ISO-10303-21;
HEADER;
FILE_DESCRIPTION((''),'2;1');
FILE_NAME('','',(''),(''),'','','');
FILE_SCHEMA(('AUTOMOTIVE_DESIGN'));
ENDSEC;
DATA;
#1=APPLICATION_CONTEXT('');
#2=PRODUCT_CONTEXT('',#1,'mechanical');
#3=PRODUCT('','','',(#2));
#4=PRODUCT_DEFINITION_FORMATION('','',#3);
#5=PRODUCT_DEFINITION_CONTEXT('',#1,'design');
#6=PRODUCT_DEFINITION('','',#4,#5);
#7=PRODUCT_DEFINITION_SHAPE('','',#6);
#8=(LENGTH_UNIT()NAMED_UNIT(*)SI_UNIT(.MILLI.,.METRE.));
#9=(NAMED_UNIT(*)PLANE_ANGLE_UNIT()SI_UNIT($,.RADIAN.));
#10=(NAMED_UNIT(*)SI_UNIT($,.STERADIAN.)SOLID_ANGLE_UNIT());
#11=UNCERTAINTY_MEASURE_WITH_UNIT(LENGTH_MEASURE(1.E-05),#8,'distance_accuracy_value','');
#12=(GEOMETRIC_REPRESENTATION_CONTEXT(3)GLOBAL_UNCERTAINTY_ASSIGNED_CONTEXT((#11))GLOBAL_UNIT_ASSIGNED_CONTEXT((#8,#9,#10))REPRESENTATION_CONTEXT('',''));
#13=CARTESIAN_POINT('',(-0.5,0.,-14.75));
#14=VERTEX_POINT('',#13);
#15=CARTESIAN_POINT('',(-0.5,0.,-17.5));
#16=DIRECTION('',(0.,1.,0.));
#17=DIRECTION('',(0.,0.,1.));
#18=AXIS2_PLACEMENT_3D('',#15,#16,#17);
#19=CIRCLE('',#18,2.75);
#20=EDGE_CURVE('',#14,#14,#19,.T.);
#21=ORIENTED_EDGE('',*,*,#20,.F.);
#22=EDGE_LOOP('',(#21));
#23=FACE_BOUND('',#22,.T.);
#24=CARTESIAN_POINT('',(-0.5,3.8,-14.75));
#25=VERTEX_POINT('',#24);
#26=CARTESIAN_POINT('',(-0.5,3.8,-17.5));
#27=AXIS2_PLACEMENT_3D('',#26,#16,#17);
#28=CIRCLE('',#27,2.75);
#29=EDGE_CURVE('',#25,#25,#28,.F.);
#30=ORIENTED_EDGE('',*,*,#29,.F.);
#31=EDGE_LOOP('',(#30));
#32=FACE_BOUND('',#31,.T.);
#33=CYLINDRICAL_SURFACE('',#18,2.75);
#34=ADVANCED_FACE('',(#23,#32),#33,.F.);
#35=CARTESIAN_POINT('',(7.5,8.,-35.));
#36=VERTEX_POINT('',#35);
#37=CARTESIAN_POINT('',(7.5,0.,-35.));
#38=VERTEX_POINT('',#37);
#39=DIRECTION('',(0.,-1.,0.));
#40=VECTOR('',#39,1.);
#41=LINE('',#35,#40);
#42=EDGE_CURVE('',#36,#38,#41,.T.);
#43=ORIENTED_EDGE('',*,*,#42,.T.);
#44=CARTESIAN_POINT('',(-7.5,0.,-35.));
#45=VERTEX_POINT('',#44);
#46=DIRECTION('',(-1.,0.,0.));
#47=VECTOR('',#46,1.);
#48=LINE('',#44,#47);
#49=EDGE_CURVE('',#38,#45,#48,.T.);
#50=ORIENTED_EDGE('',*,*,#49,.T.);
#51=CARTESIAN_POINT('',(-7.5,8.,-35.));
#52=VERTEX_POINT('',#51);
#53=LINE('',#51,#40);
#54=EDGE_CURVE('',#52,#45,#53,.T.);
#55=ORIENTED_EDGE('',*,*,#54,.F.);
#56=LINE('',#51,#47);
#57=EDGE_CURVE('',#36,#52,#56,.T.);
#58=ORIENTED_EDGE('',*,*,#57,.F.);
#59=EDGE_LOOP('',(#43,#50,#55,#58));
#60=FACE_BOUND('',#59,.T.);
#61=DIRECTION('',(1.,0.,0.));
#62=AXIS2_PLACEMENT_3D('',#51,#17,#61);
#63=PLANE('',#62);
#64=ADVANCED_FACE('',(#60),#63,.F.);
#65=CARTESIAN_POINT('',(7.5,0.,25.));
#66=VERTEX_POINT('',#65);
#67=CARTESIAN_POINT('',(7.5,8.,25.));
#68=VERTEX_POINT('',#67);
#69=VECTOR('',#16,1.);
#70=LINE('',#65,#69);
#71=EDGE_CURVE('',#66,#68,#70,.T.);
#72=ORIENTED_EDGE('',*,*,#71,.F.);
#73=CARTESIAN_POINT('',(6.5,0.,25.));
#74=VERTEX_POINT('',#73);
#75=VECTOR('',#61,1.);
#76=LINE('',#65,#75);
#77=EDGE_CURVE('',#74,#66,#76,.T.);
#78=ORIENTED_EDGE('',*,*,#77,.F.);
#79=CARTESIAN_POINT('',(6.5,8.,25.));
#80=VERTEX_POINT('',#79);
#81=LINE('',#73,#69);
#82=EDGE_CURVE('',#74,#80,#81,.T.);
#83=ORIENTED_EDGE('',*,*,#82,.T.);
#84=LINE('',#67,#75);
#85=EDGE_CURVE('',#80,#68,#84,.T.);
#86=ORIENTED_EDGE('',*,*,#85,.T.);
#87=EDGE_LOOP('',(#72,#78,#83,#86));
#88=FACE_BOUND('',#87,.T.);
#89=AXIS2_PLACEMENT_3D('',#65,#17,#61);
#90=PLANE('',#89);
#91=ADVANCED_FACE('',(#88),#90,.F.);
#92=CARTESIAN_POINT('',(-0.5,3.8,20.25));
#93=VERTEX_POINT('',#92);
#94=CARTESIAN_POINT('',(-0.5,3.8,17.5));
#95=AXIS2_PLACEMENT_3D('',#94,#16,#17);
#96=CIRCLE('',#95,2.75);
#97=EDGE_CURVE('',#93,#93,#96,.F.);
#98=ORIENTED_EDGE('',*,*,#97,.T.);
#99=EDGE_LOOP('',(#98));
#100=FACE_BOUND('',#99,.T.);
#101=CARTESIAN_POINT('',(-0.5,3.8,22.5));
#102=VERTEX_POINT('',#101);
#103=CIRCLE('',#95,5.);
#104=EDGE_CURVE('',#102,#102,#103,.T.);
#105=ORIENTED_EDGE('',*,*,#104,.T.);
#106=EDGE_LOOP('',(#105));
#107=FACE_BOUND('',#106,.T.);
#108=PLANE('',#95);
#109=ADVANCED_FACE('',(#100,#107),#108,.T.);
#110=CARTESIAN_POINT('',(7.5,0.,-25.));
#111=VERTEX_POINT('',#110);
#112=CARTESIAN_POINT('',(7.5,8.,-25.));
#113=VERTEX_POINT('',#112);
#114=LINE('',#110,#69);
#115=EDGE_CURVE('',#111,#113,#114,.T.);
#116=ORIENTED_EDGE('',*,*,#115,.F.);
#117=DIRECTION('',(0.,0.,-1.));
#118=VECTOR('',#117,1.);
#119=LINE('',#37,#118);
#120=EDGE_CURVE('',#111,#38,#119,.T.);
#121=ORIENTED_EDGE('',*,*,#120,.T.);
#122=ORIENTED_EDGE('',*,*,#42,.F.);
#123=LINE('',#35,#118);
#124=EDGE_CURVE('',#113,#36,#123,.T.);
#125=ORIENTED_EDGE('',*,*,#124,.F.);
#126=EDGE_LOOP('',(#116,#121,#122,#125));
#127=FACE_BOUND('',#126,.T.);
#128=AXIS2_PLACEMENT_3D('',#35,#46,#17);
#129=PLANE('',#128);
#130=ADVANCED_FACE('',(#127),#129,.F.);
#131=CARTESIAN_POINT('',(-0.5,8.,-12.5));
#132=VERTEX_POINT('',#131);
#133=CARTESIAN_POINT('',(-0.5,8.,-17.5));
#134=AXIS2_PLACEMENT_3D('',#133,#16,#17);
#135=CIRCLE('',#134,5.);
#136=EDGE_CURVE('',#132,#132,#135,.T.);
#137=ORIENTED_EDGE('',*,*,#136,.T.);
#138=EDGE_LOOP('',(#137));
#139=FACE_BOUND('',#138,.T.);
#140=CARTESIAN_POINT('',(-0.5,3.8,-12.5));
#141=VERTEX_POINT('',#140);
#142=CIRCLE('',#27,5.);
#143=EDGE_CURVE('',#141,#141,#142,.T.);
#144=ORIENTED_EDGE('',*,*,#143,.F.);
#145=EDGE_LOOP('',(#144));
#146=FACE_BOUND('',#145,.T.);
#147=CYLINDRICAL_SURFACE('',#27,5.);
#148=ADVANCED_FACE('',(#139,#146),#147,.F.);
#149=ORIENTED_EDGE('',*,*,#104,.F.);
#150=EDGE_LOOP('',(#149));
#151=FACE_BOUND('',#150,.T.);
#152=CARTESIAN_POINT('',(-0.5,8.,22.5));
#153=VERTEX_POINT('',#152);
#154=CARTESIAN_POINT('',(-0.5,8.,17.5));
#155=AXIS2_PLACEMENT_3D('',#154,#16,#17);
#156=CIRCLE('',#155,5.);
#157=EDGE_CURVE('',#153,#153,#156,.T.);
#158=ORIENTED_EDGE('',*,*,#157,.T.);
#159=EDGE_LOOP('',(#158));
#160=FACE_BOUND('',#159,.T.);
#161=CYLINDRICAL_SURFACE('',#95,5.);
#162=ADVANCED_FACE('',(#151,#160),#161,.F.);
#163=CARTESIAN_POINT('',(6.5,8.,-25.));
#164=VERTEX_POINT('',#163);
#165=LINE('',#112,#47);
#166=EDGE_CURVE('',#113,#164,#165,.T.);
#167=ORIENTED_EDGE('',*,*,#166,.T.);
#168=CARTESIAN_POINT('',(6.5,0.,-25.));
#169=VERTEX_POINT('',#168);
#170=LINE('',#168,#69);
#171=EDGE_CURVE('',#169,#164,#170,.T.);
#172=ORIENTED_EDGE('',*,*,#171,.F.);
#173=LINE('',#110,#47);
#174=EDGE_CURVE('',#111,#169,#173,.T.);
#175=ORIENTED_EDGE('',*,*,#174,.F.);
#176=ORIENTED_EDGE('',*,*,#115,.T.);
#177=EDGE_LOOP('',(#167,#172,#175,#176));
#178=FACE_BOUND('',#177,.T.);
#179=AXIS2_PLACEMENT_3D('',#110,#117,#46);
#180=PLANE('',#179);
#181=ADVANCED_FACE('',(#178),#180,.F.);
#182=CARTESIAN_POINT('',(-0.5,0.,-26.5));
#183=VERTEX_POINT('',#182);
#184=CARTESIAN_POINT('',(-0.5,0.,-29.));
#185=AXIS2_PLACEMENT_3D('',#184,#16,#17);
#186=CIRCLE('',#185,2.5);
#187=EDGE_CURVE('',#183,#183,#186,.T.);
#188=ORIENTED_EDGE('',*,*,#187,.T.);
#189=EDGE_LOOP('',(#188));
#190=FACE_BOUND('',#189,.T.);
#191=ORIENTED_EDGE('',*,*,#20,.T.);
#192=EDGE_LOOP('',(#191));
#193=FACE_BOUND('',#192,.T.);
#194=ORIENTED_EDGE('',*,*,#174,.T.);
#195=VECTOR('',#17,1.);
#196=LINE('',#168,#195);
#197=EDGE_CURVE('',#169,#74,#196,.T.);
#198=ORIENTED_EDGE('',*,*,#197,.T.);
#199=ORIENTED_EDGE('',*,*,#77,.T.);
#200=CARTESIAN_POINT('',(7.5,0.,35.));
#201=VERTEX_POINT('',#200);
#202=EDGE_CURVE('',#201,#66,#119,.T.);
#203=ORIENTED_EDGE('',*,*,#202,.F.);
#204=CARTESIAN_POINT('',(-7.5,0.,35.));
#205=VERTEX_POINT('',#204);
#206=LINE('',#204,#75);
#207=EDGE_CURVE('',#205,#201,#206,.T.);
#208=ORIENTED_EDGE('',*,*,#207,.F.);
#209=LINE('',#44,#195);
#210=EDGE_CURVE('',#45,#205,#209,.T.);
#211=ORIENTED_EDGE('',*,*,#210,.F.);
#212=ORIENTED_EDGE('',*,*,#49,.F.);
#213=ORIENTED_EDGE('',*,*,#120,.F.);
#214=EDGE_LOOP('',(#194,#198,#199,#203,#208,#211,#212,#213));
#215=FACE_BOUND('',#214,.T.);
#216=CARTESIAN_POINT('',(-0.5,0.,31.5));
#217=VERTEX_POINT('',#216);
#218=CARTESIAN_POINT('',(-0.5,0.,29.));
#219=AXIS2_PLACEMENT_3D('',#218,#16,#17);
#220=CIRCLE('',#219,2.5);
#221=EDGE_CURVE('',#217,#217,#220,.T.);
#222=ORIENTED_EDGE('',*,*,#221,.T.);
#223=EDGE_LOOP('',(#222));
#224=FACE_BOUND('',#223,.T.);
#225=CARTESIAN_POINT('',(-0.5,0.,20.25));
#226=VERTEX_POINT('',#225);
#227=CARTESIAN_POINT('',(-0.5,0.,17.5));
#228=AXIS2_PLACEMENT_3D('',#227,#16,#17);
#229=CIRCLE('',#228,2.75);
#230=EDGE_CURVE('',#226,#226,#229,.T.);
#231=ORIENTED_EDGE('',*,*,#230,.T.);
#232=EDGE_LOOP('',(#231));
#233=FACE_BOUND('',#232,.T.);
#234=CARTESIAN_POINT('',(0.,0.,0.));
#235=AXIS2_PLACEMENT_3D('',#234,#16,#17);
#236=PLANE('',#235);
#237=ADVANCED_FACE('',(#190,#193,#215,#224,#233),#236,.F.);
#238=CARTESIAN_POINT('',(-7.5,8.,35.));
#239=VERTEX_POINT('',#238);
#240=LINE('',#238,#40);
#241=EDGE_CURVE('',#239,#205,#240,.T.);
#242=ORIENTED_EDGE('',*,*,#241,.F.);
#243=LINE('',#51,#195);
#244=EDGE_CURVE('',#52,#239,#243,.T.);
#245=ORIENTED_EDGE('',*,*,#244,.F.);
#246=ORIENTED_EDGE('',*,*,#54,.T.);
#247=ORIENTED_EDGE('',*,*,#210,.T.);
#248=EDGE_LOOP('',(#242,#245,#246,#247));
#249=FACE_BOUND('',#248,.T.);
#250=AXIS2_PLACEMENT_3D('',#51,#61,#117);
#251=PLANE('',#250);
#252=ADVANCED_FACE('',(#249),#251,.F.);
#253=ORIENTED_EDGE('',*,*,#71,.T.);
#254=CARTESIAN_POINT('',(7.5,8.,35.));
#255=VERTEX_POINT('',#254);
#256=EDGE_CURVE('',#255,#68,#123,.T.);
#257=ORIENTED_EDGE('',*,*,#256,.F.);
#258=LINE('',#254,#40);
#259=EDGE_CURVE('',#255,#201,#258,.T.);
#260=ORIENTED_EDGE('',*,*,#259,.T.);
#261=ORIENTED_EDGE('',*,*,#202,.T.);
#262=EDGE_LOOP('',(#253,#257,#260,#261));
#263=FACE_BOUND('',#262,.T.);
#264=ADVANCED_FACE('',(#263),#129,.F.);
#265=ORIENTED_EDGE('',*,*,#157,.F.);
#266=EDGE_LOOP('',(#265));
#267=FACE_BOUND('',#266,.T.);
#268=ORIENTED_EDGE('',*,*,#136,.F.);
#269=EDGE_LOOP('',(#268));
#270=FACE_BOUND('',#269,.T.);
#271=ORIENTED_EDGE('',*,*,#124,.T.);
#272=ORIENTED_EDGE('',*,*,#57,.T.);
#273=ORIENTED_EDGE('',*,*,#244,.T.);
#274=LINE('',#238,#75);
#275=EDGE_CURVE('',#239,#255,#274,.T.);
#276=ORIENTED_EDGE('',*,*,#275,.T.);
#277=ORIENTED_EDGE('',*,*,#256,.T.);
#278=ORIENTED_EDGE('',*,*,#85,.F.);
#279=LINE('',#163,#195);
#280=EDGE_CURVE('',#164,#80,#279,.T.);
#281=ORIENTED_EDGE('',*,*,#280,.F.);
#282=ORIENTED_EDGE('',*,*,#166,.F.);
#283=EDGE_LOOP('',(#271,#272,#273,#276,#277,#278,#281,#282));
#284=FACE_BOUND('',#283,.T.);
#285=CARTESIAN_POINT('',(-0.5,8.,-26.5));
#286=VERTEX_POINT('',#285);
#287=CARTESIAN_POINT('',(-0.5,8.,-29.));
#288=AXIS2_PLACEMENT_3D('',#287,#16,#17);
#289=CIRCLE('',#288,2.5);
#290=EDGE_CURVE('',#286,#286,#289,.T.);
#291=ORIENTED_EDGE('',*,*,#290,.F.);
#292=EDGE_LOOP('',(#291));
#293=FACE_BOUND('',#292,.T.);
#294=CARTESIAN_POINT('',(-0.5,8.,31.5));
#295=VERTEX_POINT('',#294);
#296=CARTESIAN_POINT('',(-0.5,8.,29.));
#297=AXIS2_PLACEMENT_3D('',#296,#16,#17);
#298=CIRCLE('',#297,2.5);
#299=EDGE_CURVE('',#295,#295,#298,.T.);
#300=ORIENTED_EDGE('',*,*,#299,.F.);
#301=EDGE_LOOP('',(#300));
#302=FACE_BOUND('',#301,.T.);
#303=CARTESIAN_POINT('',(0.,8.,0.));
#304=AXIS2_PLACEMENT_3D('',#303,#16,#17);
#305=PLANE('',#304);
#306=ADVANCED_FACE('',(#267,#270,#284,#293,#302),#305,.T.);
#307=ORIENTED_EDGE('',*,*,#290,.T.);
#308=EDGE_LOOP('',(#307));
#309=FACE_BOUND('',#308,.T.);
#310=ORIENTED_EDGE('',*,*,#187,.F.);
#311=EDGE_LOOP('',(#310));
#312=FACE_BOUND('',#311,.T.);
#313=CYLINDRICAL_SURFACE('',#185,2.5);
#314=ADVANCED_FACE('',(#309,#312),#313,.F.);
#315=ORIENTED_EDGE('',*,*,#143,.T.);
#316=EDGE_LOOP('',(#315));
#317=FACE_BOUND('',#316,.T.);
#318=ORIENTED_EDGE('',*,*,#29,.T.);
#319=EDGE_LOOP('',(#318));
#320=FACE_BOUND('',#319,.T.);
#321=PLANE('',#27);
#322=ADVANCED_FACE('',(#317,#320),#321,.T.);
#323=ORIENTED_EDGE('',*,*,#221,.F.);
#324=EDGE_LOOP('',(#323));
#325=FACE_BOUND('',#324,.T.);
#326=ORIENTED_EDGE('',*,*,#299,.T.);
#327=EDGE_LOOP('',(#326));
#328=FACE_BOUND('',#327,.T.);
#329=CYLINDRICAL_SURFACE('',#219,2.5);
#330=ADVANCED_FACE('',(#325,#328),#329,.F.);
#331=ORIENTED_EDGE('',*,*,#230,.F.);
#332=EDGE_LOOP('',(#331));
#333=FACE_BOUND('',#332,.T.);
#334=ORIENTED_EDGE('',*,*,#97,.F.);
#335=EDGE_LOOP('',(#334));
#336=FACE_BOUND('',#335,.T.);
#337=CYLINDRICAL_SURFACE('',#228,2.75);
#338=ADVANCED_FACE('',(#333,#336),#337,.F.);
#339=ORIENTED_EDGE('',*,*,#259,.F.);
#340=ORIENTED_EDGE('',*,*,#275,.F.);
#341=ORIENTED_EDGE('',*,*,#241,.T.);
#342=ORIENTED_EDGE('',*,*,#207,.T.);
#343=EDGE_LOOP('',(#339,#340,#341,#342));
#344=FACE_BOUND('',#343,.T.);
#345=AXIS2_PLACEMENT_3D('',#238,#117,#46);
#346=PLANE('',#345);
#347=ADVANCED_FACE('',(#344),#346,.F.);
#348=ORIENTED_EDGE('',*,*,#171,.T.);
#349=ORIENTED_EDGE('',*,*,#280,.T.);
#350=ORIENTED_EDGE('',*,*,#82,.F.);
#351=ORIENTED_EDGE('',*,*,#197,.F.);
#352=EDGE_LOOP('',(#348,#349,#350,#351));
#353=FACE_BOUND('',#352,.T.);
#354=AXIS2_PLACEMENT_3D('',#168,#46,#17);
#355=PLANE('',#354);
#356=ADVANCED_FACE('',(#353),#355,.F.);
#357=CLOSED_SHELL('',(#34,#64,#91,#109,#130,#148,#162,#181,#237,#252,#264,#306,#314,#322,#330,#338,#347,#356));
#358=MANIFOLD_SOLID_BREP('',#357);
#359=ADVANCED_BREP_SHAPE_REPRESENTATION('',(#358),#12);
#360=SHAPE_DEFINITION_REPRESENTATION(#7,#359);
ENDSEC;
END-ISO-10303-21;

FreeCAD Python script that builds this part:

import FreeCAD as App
import Part
import Sketcher

V = App.Vector
Q = App.Units.Quantity


def add_polygon(sketch, points):
    """Adds a closed chain of lines whose ends are joined by coincident constraints."""
    first, n = sketch.GeometryCount, len(points)
    for a, b in zip(points, points[1:] + points[:1]):
        sketch.addGeometry(Part.LineSegment(App.Vector(*a, 0), App.Vector(*b, 0)), False)
    for i in range(n):
        sketch.addConstraint(Sketcher.Constraint("Coincident", first + i, 2, first + (i + 1) % n, 1))

doc = App.newDocument("Part")
body = doc.addObject("PartDesign::Body", "Body")

sketch1 = body.newObject("Sketcher::SketchObject", "Sketch")
sketch1.AttachmentSupport = (doc.getObject("XZ_Plane"), [""])
sketch1.MapMode = "FlatFace"
add_polygon(sketch1, [(-7.5, -35), (-7.5, 35), (7.5, 35), (7.5, -35)])
sketch1.addConstraint(Sketcher.Constraint("Vertical", 0))
sketch1.addConstraint(Sketcher.Constraint("Horizontal", 1))
sketch1.addConstraint(Sketcher.Constraint("Vertical", 2))
sketch1.addConstraint(Sketcher.Constraint("Horizontal", 3))
sketch1.addConstraint(Sketcher.Constraint("Symmetric", 0, 2, 2, 2, -1, 1))
sketch1.addConstraint(Sketcher.Constraint("DistanceX", 1, 1, 1, 2, Q("15 mm")))
sketch1.addConstraint(Sketcher.Constraint("DistanceY", 0, 1, 0, 2, Q("70 mm")))
pad1 = body.newObject("PartDesign::Pad", "Pad")
pad1.Profile = sketch1
pad1.Length = 8
pad1.Reversed = True

sketch2 = body.newObject("Sketcher::SketchObject", "Sketch001")
sketch2.AttachmentSupport = (doc.getObject("XZ_Plane"), [""])
sketch2.MapMode = "FlatFace"
sketch2.AttachmentOffset = App.Placement(V(0, 0, -8), App.Rotation())
add_polygon(sketch2, [(6.5, -25), (6.5, 25), (7.5, 25), (7.5, -25)])
sketch2.addConstraint(Sketcher.Constraint("Vertical", 0))
sketch2.addConstraint(Sketcher.Constraint("Horizontal", 1))
sketch2.addConstraint(Sketcher.Constraint("Vertical", 2))
sketch2.addConstraint(Sketcher.Constraint("Horizontal", 3))
sketch2.addConstraint(Sketcher.Constraint("DistanceX", 1, 1, 1, 2, Q("1 mm")))
sketch2.addConstraint(Sketcher.Constraint("DistanceY", 0, 1, 0, 2, Q("50 mm")))
sketch2.addConstraint(Sketcher.Constraint("DistanceY", -1, 1, 0, 2, Q("25 mm")))
sketch2.addConstraint(Sketcher.Constraint("DistanceX", -1, 1, 0, 2, Q("6.5 mm")))
pocket1 = body.newObject("PartDesign::Pocket", "Pocket")
pocket1.Profile = sketch2
pocket1.Length = 8
pocket1.Reversed = True

sketch3 = body.newObject("Sketcher::SketchObject", "Sketch002")
sketch3.AttachmentSupport = (doc.getObject("XZ_Plane"), [""])
sketch3.MapMode = "FlatFace"
sketch3.AttachmentOffset = App.Placement(V(0, 0, -8), App.Rotation())
sketch3.addGeometry(Part.Circle(V(-0.5, 29, 0), V(0, 0, 1), 2.5), False)
sketch3.addGeometry(Part.Circle(V(-0.5, -29, 0), V(0, 0, 1), 2.5), False)
sketch3.addConstraint(Sketcher.Constraint("Equal", 0, 1))
sketch3.addConstraint(Sketcher.Constraint("Symmetric", 0, 3, 1, 3, -1))
sketch3.addConstraint(Sketcher.Constraint("Diameter", 0, Q("5 mm")))
sketch3.addConstraint(Sketcher.Constraint("DistanceY", -1, 1, 0, 3, Q("29 mm")))
sketch3.addConstraint(Sketcher.Constraint("DistanceX", 0, 3, -1, 1, Q("0.5 mm")))
pocket2 = body.newObject("PartDesign::Pocket", "Pocket001")
pocket2.Profile = sketch3
pocket2.Length = 8
pocket2.Reversed = True

sketch4 = body.newObject("Sketcher::SketchObject", "Sketch003")
sketch4.AttachmentSupport = (doc.getObject("XZ_Plane"), [""])
sketch4.MapMode = "FlatFace"
sketch4.AttachmentOffset = App.Placement(V(0, 0, -8), App.Rotation())
sketch4.addGeometry(Part.Circle(V(-0.5, 17.5, 0), V(0, 0, 1), 2.75), False)
sketch4.addGeometry(Part.Circle(V(-0.5, -17.5, 0), V(0, 0, 1), 2.75), False)
sketch4.addConstraint(Sketcher.Constraint("Equal", 0, 1))
sketch4.addConstraint(Sketcher.Constraint("Symmetric", 0, 3, 1, 3, -1))
sketch4.addConstraint(Sketcher.Constraint("Diameter", 0, Q("5.5 mm")))
sketch4.addConstraint(Sketcher.Constraint("DistanceY", 1, 3, 0, 3, Q("35 mm")))
sketch4.addConstraint(Sketcher.Constraint("DistanceX", 0, 3, -1, 1, Q("0.5 mm")))
pocket3 = body.newObject("PartDesign::Pocket", "Pocket002")
pocket3.Profile = sketch4
pocket3.Length = 8
pocket3.Reversed = True

sketch5 = body.newObject("Sketcher::SketchObject", "Sketch004")
sketch5.AttachmentSupport = (doc.getObject("XZ_Plane"), [""])
sketch5.MapMode = "FlatFace"
sketch5.AttachmentOffset = App.Placement(V(0, 0, -8), App.Rotation())
sketch5.addGeometry(Part.Circle(V(-0.5, -17.5, 0), V(0, 0, 1), 5), False)
sketch5.addGeometry(Part.Circle(V(-0.5, 17.5, 0), V(0, 0, 1), 5), False)
sketch5.addConstraint(Sketcher.Constraint("Equal", 0, 1))
sketch5.addConstraint(Sketcher.Constraint("Symmetric", 0, 3, 1, 3, -1))
sketch5.addConstraint(Sketcher.Constraint("Diameter", 0, Q("10 mm")))
sketch5.addConstraint(Sketcher.Constraint("DistanceY", 0, 3, 1, 3, Q("35 mm")))
sketch5.addConstraint(Sketcher.Constraint("DistanceX", 0, 3, -1, 1, Q("0.5 mm")))
pocket4 = body.newObject("PartDesign::Pocket", "Pocket003")
pocket4.Profile = sketch5
pocket4.Length = 4.2
pocket4.Reversed = True

doc.recompute()
